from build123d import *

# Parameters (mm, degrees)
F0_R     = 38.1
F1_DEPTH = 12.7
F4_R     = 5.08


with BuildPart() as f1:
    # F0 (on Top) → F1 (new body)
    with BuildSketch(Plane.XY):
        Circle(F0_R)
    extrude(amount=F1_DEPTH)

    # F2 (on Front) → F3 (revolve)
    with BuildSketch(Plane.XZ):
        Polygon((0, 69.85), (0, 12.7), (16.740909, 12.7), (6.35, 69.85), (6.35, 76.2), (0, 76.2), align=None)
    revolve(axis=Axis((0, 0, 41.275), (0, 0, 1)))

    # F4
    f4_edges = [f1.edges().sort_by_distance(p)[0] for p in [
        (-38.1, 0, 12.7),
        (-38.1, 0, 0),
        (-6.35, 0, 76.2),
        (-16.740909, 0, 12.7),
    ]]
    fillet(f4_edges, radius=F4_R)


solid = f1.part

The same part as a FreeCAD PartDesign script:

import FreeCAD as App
import Part
import Sketcher
Q = App.Units.Quantity


def edges_at(feature, points):
    """Names of the edges that pass closest to the given points."""
    edges = feature.Shape.Edges
    near = lambda p: min(range(len(edges)), key=lambda i: edges[i].distToShape(Part.Vertex(*p))[0])
    return sorted({f"Edge{near(p) + 1}" for p in points})


def add_polygon(sketch, points):
    """Adds a closed chain of lines whose ends are joined by coincident constraints."""
    first, n = sketch.GeometryCount, len(points)
    for a, b in zip(points, points[1:] + points[:1]):
        sketch.addGeometry(Part.LineSegment(App.Vector(*a, 0), App.Vector(*b, 0)), False)
    for i in range(n):
        sketch.addConstraint(Sketcher.Constraint("Coincident", first + i, 2, first + (i + 1) % n, 1))

doc = App.newDocument("Part")
body = doc.addObject("PartDesign::Body", "Body")

# Sketch on XY plane
sketch1 = body.newObject("Sketcher::SketchObject", "Sketch")
sketch1.AttachmentSupport = (doc.getObject("XY_Plane"), [""])
sketch1.MapMode = "FlatFace"
sketch1.addGeometry(Part.Circle(App.Vector(0, 0, 0), App.Vector(0, 0, 1), 38), False)
sketch1.addConstraint([
    Sketcher.Constraint("Coincident", 0, 3, -1, 1),
    Sketcher.Constraint("Diameter", 0, Q("3 in")),
])
pad1 = body.newObject("PartDesign::Pad", "Pad")
pad1.Profile = sketch1
pad1.Length = Q("0.5 in")

# Sketch on XZ plane
sketch2 = body.newObject("Sketcher::SketchObject", "Sketch001")
sketch2.AttachmentSupport = (doc.getObject("XZ_Plane"), [""])
sketch2.MapMode = "FlatFace"
add_polygon(sketch2, [(0, 13), (17, 13), (6, 70), (6, 76), (0, 76)])  # lines 0-4
sketch2.addConstraint([
    Sketcher.Constraint("Horizontal", 0),
    Sketcher.Constraint("Vertical", 2),
    Sketcher.Constraint("Horizontal", 3),
    Sketcher.Constraint("Vertical", 4),
    Sketcher.Constraint("PointOnObject", 3, 2, -2),
    Sketcher.Constraint("Equal", 3, 2),
    Sketcher.Constraint("DistanceY", 4, 2, 4, 1, Q("2.5 in")),
    Sketcher.Constraint("DistanceY", -1, 1, 2, 2, Q("3 in")),
    Sketcher.Constraint("DistanceX", 3, 2, 3, 1, Q("0.25 in")),
    Sketcher.Constraint("DistanceX", 0, 1, 0, 2, Q("16.740909 mm")),
])
revolution = body.newObject("PartDesign::Revolution", "Revolution")
revolution.Profile = sketch2
revolution.ReferenceAxis = (sketch2, ["V_Axis"])
revolution.Angle = 360
doc.recompute()

fillet = body.newObject("PartDesign::Fillet", "Fillet")
fillet.Base = (revolution, edges_at(revolution, [
    (-38.1, 0, 12.7),
    (-38.1, 0, 0),
    (-6.35, 0, 76.2),
    (-16.741, 0, 12.7),
]))
fillet.Radius = Q("0.2 in")

doc.recompute()
